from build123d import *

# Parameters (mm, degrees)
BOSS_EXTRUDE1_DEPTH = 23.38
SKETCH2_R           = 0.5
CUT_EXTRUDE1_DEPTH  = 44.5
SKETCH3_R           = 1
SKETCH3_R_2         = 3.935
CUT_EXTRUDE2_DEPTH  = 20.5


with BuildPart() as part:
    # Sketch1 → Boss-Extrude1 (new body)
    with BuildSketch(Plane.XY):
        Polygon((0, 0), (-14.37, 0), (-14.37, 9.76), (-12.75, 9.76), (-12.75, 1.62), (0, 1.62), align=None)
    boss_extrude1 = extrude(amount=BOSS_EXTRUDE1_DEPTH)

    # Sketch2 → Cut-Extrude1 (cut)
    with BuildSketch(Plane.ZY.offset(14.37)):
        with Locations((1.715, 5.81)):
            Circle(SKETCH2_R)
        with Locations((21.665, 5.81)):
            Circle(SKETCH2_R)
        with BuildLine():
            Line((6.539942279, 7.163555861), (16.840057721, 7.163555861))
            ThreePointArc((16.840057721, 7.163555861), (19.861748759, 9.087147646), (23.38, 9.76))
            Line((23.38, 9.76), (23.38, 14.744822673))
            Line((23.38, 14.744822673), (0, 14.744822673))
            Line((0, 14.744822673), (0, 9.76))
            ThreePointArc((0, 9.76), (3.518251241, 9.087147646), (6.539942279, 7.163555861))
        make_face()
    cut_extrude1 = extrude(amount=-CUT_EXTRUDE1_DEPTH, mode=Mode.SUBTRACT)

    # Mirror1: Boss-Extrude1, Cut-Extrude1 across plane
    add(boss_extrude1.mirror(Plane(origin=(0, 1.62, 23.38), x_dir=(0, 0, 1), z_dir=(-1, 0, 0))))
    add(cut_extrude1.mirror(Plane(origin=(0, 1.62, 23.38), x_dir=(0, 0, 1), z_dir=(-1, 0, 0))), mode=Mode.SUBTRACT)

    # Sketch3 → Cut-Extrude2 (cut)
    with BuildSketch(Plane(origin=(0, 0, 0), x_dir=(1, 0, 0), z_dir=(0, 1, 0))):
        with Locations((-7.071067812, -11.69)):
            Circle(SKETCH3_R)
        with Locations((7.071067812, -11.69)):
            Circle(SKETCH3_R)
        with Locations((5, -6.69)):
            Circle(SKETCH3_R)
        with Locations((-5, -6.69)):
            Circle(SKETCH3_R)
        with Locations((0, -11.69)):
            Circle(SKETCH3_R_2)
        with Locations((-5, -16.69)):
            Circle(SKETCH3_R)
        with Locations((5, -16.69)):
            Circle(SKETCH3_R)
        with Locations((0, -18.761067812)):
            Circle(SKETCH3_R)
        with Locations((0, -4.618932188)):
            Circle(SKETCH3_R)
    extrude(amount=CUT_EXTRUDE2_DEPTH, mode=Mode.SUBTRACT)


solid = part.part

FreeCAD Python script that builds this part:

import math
import FreeCAD as App
import Part
import Sketcher

doc = App.newDocument("Part")
body = doc.addObject("PartDesign::Body", "Body")

# Sketch on XY plane
sketch1 = body.newObject("Sketcher::SketchObject", "Sketch")
sketch1.AttachmentSupport = (doc.getObject("XY_Plane"), [""])
sketch1.MapMode = "FlatFace"
sketch1.addGeometry(Part.LineSegment(App.Vector(-14.4, 0, 0), App.Vector(0, 0, 0)), False)
sketch1.addGeometry(Part.LineSegment(App.Vector(0, 0, 0), App.Vector(0, 1.6, 0)), False)
sketch1.addGeometry(Part.LineSegment(App.Vector(0, 1.6, 0), App.Vector(-12.8, 1.6, 0)), False)
sketch1.addGeometry(Part.LineSegment(App.Vector(-12.8, 1.6, 0), App.Vector(-12.8, 9.8, 0)), False)
sketch1.addGeometry(Part.LineSegment(App.Vector(-12.8, 9.8, 0), App.Vector(-14.4, 9.8, 0)), False)
sketch1.addGeometry(Part.LineSegment(App.Vector(-14.4, 9.8, 0), App.Vector(-14.4, 0, 0)), False)
sketch1.addConstraint(Sketcher.Constraint("Coincident", 0, 2, 1, 1))
sketch1.addConstraint(Sketcher.Constraint("Coincident", 1, 2, 2, 1))
sketch1.addConstraint(Sketcher.Constraint("Coincident", 2, 2, 3, 1))
sketch1.addConstraint(Sketcher.Constraint("Coincident", 3, 2, 4, 1))
sketch1.addConstraint(Sketcher.Constraint("Coincident", 4, 2, 5, 1))
sketch1.addConstraint(Sketcher.Constraint("Coincident", 5, 2, 0, 1))
sketch1.addConstraint(Sketcher.Constraint("Horizontal", 0))
sketch1.addConstraint(Sketcher.Constraint("Vertical", 1))
sketch1.addConstraint(Sketcher.Constraint("Horizontal", 2))
sketch1.addConstraint(Sketcher.Constraint("Vertical", 3))
sketch1.addConstraint(Sketcher.Constraint("Horizontal", 4))
sketch1.addConstraint(Sketcher.Constraint("Vertical", 5))
sketch1.addConstraint(Sketcher.Constraint("Coincident", 0, 2, -1, 1))
sketch1.addConstraint(Sketcher.Constraint("Equal", 4, 1))
sketch1.addConstraint(Sketcher.Constraint("DistanceX", 0, 1, 0, 2, 14.37))
sketch1.addConstraint(Sketcher.Constraint("DistanceX", 2, 2, 2, 1, 12.75))
sketch1.addConstraint(Sketcher.Constraint("DistanceY", 3, 1, 3, 2, 8.14))
pad1 = body.newObject("PartDesign::Pad", "Pad")
pad1.Profile = sketch1
pad1.Length = 23.38

# Sketch on YZ plane
sketch2 = body.newObject("Sketcher::SketchObject", "Sketch001")
sketch2.AttachmentSupport = (doc.getObject("YZ_Plane"), [""])
sketch2.MapMode = "FlatFace"
sketch2.AttachmentOffset = App.Placement(App.Vector(0, 0, -14.37), App.Rotation())
sketch2.addGeometry(Part.Circle(App.Vector(5.8, 1.7, 0), App.Vector(0, 0, 1), 0.5), False)
sketch2.addGeometry(Part.Circle(App.Vector(5.8, 21.7, 0), App.Vector(0, 0, 1), 0.5), False)
sketch2.addGeometry(Part.LineSegment(App.Vector(7.2, 6.5, 0), App.Vector(7.2, 16.8, 0)), False)
sketch2.addGeometry(Part.ArcOfCircle(Part.Circle(App.Vector(0.2, 23.4, 0), App.Vector(0, 0, 1), 9.5), math.radians(-43), math.radians(0)), False)
sketch2.addGeometry(Part.LineSegment(App.Vector(9.8, 23.4, 0), App.Vector(14.7, 23.4, 0)), False)
sketch2.addGeometry(Part.LineSegment(App.Vector(14.7, 23.4, 0), App.Vector(14.7, 0, 0)), False)
sketch2.addGeometry(Part.LineSegment(App.Vector(14.7, 0, 0), App.Vector(9.8, 0, 0)), False)
sketch2.addGeometry(Part.ArcOfCircle(Part.Circle(App.Vector(0.2, 0, 0), App.Vector(0, 0, 1), 9.5), math.radians(0), math.radians(43)), False)
sketch2.addConstraint(Sketcher.Constraint("Coincident", 2, 2, 3, 1))
sketch2.addConstraint(Sketcher.Constraint("Coincident", 3, 2, 4, 1))
sketch2.addConstraint(Sketcher.Constraint("Coincident", 4, 2, 5, 1))
sketch2.addConstraint(Sketcher.Constraint("Coincident", 5, 2, 6, 1))
sketch2.addConstraint(Sketcher.Constraint("Coincident", 6, 2, 7, 1))
sketch2.addConstraint(Sketcher.Constraint("Coincident", 7, 2, 2, 1))
sketch2.addConstraint(Sketcher.Constraint("Vertical", 2))
sketch2.addConstraint(Sketcher.Constraint("Horizontal", 4))
sketch2.addConstraint(Sketcher.Constraint("Vertical", 5))
sketch2.addConstraint(Sketcher.Constraint("Horizontal", 6))
sketch2.addConstraint(Sketcher.Constraint("Equal", 0, 1))
sketch2.addConstraint(Sketcher.Constraint("Equal", 3, 7))
sketch2.addConstraint(Sketcher.Constraint("PointOnObject", 7, 3, -1))
sketch2.addConstraint(Sketcher.Constraint("PointOnObject", 5, 2, -1))
sketch2.addConstraint(Sketcher.Constraint("Vertical", 0, 3, 1, 3))
sketch2.addConstraint(Sketcher.Constraint("Vertical", 3, 3, 7, 3))
sketch2.addConstraint(Sketcher.Constraint("Diameter", 0, 1.0))
sketch2.addConstraint(Sketcher.Constraint("DistanceY", 5, 2, 5, 1, 23.38))
sketch2.addConstraint(Sketcher.Constraint("DistanceX", -1, 1, 0, 3, 5.81))
sketch2.addConstraint(Sketcher.Constraint("DistanceY", -1, 1, 3, 3, 23.38))
sketch2.addConstraint(Sketcher.Constraint("DistanceX", -1, 1, 3, 2, 9.76))
sketch2.addConstraint(Sketcher.Constraint("Radius", 3, 9.534649))
sketch2.addConstraint(Sketcher.Constraint("DistanceY", 0, 3, 1, 3, 19.95))
sketch2.addConstraint(Sketcher.Constraint("DistanceY", -1, 1, 0, 3, 1.715))
sketch2.addConstraint(Sketcher.Constraint("DistanceX", 4, 1, 4, 2, 4.984823))
sketch2.addConstraint(Sketcher.Constraint("DistanceY", 2, 1, 2, 2, 10.300115))
pocket1 = body.newObject("PartDesign::Pocket", "Pocket")
pocket1.Profile = sketch2
pocket1.Length = 44.5
pocket1.Reversed = True
doc.recompute()

mirrored = body.newObject("PartDesign::Mirrored", "Mirrored")
mirrored.Originals = [pad1, pocket1]
mirrored.MirrorPlane = (doc.getObject("YZ_Plane"), [""])
body.Tip = mirrored

# Sketch on XZ plane
sketch3 = body.newObject("Sketcher::SketchObject", "Sketch002")
sketch3.AttachmentSupport = (doc.getObject("XZ_Plane"), [""])
sketch3.MapMode = "FlatFace"
sketch3.addGeometry(Part.Circle(App.Vector(-7.1, 11.7, 0), App.Vector(0, 0, 1), 1), False)
sketch3.addGeometry(Part.Circle(App.Vector(7.1, 11.7, 0), App.Vector(0, 0, 1), 1), False)
sketch3.addGeometry(Part.Circle(App.Vector(5, 6.7, 0), App.Vector(0, 0, 1), 1), False)
sketch3.addGeometry(Part.Circle(App.Vector(-5, 6.7, 0), App.Vector(0, 0, 1), 1), False)
sketch3.addGeometry(Part.Circle(App.Vector(0, 11.7, 0), App.Vector(0, 0, 1), 3.9), False)
sketch3.addGeometry(Part.Circle(App.Vector(-5, 16.7, 0), App.Vector(0, 0, 1), 1), False)
sketch3.addGeometry(Part.Circle(App.Vector(5, 16.7, 0), App.Vector(0, 0, 1), 1), False)
sketch3.addGeometry(Part.Circle(App.Vector(0, 18.8, 0), App.Vector(0, 0, 1), 1), False)
sketch3.addGeometry(Part.Circle(App.Vector(0, 4.6, 0), App.Vector(0, 0, 1), 1), False)
sketch3.addConstraint(Sketcher.Constraint("Equal", 0, 1))
sketch3.addConstraint(Sketcher.Constraint("Equal", 1, 2))
sketch3.addConstraint(Sketcher.Constraint("Equal", 2, 3))
sketch3.addConstraint(Sketcher.Constraint("Equal", 3, 5))
sketch3.addConstraint(Sketcher.Constraint("Equal", 5, 6))
sketch3.addConstraint(Sketcher.Constraint("Equal", 6, 7))
sketch3.addConstraint(Sketcher.Constraint("Equal", 7, 8))
sketch3.addConstraint(Sketcher.Constraint("Symmetric", 0, 3, 1, 3, -2))
sketch3.addConstraint(Sketcher.Constraint("Symmetric", 2, 3, 3, 3, -2))
sketch3.addConstraint(Sketcher.Constraint("Symmetric", 5, 3, 6, 3, -2))
sketch3.addConstraint(Sketcher.Constraint("PointOnObject", 4, 3, -2))
sketch3.addConstraint(Sketcher.Constraint("PointOnObject", 7, 3, -2))
sketch3.addConstraint(Sketcher.Constraint("PointOnObject", 8, 3, -2))
sketch3.addConstraint(Sketcher.Constraint("Horizontal", 1, 3, 4, 3))
sketch3.addConstraint(Sketcher.Constraint("Vertical", 3, 3, 5, 3))
sketch3.addConstraint(Sketcher.Constraint("Diameter", 0, 2.0))
sketch3.addConstraint(Sketcher.Constraint("Diameter", 4, 7.87))
sketch3.addConstraint(Sketcher.Constraint("DistanceX", -1, 1, 2, 3, 5.0))
sketch3.addConstraint(Sketcher.Constraint("DistanceY", 2, 3, 1, 3, 5.0))
sketch3.addConstraint(Sketcher.Constraint("DistanceY", 0, 3, 5, 3, 5.0))
sketch3.addConstraint(Sketcher.Constraint("DistanceY", -1, 1, 0, 3, 11.69))
sketch3.addConstraint(Sketcher.Constraint("DistanceX", 0, 3, -1, 1, 7.071068))
sketch3.addConstraint(Sketcher.Constraint("DistanceY", -1, 1, 7, 3, 18.761068))
sketch3.addConstraint(Sketcher.Constraint("DistanceY", -1, 1, 8, 3, 4.618932))
pocket2 = body.newObject("PartDesign::Pocket", "Pocket001")
pocket2.Profile = sketch3
pocket2.Length = 20.5

doc.recompute()
